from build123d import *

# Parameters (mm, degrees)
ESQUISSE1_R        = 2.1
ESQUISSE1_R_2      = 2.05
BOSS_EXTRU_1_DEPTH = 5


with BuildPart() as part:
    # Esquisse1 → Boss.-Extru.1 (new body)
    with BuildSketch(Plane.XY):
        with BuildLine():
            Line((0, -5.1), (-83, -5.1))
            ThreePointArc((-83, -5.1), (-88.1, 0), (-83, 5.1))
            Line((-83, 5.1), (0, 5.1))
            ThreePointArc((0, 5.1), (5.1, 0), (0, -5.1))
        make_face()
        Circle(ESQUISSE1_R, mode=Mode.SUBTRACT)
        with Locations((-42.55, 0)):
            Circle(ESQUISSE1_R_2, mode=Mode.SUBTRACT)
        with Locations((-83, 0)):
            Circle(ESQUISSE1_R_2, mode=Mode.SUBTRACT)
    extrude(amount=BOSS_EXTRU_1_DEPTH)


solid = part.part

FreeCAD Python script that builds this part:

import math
import FreeCAD as App
import Part
import Sketcher
from FreeCAD import Vector
Q = App.Units.Quantity

doc = App.newDocument("Part")
params = doc.addObject("Spreadsheet::Sheet", "Params")
for row, (alias, value) in enumerate([
    ("sketch1_diameter", "4.2 mm"),
    ("sketch1_diameter2", "4.1 mm"),
    ("sketch1_radius", "5.1 mm"),
    ("sketch1_width", "83 mm"),
    ("pad1_length", "5 mm"),
], start=1):
    params.set(f"A{row}", alias)
    params.set(f"B{row}", "=" + value)
    params.setAlias(f"B{row}", alias)

body = doc.addObject("PartDesign::Body", "Body")

# Sketch on XY plane
sketch1 = body.newObject("Sketcher::SketchObject", "Sketch")
sketch1.AttachmentSupport = (doc.getObject("XY_Plane"), [""])
sketch1.MapMode = "FlatFace"
sketch1.addGeometry(Part.LineSegment(Vector(-83, -5.1, 0), Vector(0, -5.1, 0)), False)
sketch1.addGeometry(Part.ArcOfCircle(Part.Circle(Vector(0, 0, 0), Vector(0, 0, 1), 5.1), math.radians(-90), math.radians(90)), False)
sketch1.addGeometry(Part.LineSegment(Vector(0, 5.1, 0), Vector(-83, 5.1, 0)), False)
sketch1.addGeometry(Part.ArcOfCircle(Part.Circle(Vector(-83, 0, 0), Vector(0, 0, 1), 5.1), math.radians(90), math.radians(270)), False)
sketch1.addGeometry(Part.Circle(Vector(0, 0, 0), Vector(0, 0, 1), 2.1), False)
sketch1.addGeometry(Part.Circle(Vector(-42.5, 0, 0), Vector(0, 0, 1), 2), False)
sketch1.addGeometry(Part.Circle(Vector(-83, 0, 0), Vector(0, 0, 1), 2), False)
sketch1.addConstraint(Sketcher.Constraint("Tangent", 0, 2, 1, 1))
sketch1.addConstraint(Sketcher.Constraint("Tangent", 1, 2, 2, 1))
sketch1.addConstraint(Sketcher.Constraint("Tangent", 2, 2, 3, 1))
sketch1.addConstraint(Sketcher.Constraint("Tangent", 3, 2, 0, 1))
sketch1.addConstraint(Sketcher.Constraint("Horizontal", 0))
sketch1.addConstraint(Sketcher.Constraint("Horizontal", 2))
sketch1.addConstraint(Sketcher.Constraint("Coincident", 1, 3, -1, 1))
sketch1.addConstraint(Sketcher.Constraint("Coincident", 4, 3, -1, 1))
sketch1.addConstraint(Sketcher.Constraint("Coincident", 6, 3, 3, 3))
sketch1.addConstraint(Sketcher.Constraint("Equal", 5, 6))
sketch1.addConstraint(Sketcher.Constraint("PointOnObject", 5, 3, -1))
sketch1.addConstraint(Sketcher.Constraint("Diameter", 4, Q("4.2 mm")))
sketch1.addConstraint(Sketcher.Constraint("Diameter", 5, Q("4.1 mm")))
sketch1.addConstraint(Sketcher.Constraint("Radius", 1, Q("5.1 mm")))
sketch1.addConstraint(Sketcher.Constraint("DistanceX", 0, 1, 0, 2, Q("83 mm")))
sketch1.addConstraint(Sketcher.Constraint("DistanceX", 5, 3, -1, 1, Q("42.55 mm")))
sketch1.setExpression("Constraints[11]", "Params.sketch1_diameter")
sketch1.setExpression("Constraints[12]", "Params.sketch1_diameter2")
sketch1.setExpression("Constraints[13]", "Params.sketch1_radius")
sketch1.setExpression("Constraints[14]", "Params.sketch1_width")
pad1 = body.newObject("PartDesign::Pad", "Pad")
pad1.Profile = sketch1
pad1.setExpression("Length", "Params.pad1_length")

doc.recompute()
